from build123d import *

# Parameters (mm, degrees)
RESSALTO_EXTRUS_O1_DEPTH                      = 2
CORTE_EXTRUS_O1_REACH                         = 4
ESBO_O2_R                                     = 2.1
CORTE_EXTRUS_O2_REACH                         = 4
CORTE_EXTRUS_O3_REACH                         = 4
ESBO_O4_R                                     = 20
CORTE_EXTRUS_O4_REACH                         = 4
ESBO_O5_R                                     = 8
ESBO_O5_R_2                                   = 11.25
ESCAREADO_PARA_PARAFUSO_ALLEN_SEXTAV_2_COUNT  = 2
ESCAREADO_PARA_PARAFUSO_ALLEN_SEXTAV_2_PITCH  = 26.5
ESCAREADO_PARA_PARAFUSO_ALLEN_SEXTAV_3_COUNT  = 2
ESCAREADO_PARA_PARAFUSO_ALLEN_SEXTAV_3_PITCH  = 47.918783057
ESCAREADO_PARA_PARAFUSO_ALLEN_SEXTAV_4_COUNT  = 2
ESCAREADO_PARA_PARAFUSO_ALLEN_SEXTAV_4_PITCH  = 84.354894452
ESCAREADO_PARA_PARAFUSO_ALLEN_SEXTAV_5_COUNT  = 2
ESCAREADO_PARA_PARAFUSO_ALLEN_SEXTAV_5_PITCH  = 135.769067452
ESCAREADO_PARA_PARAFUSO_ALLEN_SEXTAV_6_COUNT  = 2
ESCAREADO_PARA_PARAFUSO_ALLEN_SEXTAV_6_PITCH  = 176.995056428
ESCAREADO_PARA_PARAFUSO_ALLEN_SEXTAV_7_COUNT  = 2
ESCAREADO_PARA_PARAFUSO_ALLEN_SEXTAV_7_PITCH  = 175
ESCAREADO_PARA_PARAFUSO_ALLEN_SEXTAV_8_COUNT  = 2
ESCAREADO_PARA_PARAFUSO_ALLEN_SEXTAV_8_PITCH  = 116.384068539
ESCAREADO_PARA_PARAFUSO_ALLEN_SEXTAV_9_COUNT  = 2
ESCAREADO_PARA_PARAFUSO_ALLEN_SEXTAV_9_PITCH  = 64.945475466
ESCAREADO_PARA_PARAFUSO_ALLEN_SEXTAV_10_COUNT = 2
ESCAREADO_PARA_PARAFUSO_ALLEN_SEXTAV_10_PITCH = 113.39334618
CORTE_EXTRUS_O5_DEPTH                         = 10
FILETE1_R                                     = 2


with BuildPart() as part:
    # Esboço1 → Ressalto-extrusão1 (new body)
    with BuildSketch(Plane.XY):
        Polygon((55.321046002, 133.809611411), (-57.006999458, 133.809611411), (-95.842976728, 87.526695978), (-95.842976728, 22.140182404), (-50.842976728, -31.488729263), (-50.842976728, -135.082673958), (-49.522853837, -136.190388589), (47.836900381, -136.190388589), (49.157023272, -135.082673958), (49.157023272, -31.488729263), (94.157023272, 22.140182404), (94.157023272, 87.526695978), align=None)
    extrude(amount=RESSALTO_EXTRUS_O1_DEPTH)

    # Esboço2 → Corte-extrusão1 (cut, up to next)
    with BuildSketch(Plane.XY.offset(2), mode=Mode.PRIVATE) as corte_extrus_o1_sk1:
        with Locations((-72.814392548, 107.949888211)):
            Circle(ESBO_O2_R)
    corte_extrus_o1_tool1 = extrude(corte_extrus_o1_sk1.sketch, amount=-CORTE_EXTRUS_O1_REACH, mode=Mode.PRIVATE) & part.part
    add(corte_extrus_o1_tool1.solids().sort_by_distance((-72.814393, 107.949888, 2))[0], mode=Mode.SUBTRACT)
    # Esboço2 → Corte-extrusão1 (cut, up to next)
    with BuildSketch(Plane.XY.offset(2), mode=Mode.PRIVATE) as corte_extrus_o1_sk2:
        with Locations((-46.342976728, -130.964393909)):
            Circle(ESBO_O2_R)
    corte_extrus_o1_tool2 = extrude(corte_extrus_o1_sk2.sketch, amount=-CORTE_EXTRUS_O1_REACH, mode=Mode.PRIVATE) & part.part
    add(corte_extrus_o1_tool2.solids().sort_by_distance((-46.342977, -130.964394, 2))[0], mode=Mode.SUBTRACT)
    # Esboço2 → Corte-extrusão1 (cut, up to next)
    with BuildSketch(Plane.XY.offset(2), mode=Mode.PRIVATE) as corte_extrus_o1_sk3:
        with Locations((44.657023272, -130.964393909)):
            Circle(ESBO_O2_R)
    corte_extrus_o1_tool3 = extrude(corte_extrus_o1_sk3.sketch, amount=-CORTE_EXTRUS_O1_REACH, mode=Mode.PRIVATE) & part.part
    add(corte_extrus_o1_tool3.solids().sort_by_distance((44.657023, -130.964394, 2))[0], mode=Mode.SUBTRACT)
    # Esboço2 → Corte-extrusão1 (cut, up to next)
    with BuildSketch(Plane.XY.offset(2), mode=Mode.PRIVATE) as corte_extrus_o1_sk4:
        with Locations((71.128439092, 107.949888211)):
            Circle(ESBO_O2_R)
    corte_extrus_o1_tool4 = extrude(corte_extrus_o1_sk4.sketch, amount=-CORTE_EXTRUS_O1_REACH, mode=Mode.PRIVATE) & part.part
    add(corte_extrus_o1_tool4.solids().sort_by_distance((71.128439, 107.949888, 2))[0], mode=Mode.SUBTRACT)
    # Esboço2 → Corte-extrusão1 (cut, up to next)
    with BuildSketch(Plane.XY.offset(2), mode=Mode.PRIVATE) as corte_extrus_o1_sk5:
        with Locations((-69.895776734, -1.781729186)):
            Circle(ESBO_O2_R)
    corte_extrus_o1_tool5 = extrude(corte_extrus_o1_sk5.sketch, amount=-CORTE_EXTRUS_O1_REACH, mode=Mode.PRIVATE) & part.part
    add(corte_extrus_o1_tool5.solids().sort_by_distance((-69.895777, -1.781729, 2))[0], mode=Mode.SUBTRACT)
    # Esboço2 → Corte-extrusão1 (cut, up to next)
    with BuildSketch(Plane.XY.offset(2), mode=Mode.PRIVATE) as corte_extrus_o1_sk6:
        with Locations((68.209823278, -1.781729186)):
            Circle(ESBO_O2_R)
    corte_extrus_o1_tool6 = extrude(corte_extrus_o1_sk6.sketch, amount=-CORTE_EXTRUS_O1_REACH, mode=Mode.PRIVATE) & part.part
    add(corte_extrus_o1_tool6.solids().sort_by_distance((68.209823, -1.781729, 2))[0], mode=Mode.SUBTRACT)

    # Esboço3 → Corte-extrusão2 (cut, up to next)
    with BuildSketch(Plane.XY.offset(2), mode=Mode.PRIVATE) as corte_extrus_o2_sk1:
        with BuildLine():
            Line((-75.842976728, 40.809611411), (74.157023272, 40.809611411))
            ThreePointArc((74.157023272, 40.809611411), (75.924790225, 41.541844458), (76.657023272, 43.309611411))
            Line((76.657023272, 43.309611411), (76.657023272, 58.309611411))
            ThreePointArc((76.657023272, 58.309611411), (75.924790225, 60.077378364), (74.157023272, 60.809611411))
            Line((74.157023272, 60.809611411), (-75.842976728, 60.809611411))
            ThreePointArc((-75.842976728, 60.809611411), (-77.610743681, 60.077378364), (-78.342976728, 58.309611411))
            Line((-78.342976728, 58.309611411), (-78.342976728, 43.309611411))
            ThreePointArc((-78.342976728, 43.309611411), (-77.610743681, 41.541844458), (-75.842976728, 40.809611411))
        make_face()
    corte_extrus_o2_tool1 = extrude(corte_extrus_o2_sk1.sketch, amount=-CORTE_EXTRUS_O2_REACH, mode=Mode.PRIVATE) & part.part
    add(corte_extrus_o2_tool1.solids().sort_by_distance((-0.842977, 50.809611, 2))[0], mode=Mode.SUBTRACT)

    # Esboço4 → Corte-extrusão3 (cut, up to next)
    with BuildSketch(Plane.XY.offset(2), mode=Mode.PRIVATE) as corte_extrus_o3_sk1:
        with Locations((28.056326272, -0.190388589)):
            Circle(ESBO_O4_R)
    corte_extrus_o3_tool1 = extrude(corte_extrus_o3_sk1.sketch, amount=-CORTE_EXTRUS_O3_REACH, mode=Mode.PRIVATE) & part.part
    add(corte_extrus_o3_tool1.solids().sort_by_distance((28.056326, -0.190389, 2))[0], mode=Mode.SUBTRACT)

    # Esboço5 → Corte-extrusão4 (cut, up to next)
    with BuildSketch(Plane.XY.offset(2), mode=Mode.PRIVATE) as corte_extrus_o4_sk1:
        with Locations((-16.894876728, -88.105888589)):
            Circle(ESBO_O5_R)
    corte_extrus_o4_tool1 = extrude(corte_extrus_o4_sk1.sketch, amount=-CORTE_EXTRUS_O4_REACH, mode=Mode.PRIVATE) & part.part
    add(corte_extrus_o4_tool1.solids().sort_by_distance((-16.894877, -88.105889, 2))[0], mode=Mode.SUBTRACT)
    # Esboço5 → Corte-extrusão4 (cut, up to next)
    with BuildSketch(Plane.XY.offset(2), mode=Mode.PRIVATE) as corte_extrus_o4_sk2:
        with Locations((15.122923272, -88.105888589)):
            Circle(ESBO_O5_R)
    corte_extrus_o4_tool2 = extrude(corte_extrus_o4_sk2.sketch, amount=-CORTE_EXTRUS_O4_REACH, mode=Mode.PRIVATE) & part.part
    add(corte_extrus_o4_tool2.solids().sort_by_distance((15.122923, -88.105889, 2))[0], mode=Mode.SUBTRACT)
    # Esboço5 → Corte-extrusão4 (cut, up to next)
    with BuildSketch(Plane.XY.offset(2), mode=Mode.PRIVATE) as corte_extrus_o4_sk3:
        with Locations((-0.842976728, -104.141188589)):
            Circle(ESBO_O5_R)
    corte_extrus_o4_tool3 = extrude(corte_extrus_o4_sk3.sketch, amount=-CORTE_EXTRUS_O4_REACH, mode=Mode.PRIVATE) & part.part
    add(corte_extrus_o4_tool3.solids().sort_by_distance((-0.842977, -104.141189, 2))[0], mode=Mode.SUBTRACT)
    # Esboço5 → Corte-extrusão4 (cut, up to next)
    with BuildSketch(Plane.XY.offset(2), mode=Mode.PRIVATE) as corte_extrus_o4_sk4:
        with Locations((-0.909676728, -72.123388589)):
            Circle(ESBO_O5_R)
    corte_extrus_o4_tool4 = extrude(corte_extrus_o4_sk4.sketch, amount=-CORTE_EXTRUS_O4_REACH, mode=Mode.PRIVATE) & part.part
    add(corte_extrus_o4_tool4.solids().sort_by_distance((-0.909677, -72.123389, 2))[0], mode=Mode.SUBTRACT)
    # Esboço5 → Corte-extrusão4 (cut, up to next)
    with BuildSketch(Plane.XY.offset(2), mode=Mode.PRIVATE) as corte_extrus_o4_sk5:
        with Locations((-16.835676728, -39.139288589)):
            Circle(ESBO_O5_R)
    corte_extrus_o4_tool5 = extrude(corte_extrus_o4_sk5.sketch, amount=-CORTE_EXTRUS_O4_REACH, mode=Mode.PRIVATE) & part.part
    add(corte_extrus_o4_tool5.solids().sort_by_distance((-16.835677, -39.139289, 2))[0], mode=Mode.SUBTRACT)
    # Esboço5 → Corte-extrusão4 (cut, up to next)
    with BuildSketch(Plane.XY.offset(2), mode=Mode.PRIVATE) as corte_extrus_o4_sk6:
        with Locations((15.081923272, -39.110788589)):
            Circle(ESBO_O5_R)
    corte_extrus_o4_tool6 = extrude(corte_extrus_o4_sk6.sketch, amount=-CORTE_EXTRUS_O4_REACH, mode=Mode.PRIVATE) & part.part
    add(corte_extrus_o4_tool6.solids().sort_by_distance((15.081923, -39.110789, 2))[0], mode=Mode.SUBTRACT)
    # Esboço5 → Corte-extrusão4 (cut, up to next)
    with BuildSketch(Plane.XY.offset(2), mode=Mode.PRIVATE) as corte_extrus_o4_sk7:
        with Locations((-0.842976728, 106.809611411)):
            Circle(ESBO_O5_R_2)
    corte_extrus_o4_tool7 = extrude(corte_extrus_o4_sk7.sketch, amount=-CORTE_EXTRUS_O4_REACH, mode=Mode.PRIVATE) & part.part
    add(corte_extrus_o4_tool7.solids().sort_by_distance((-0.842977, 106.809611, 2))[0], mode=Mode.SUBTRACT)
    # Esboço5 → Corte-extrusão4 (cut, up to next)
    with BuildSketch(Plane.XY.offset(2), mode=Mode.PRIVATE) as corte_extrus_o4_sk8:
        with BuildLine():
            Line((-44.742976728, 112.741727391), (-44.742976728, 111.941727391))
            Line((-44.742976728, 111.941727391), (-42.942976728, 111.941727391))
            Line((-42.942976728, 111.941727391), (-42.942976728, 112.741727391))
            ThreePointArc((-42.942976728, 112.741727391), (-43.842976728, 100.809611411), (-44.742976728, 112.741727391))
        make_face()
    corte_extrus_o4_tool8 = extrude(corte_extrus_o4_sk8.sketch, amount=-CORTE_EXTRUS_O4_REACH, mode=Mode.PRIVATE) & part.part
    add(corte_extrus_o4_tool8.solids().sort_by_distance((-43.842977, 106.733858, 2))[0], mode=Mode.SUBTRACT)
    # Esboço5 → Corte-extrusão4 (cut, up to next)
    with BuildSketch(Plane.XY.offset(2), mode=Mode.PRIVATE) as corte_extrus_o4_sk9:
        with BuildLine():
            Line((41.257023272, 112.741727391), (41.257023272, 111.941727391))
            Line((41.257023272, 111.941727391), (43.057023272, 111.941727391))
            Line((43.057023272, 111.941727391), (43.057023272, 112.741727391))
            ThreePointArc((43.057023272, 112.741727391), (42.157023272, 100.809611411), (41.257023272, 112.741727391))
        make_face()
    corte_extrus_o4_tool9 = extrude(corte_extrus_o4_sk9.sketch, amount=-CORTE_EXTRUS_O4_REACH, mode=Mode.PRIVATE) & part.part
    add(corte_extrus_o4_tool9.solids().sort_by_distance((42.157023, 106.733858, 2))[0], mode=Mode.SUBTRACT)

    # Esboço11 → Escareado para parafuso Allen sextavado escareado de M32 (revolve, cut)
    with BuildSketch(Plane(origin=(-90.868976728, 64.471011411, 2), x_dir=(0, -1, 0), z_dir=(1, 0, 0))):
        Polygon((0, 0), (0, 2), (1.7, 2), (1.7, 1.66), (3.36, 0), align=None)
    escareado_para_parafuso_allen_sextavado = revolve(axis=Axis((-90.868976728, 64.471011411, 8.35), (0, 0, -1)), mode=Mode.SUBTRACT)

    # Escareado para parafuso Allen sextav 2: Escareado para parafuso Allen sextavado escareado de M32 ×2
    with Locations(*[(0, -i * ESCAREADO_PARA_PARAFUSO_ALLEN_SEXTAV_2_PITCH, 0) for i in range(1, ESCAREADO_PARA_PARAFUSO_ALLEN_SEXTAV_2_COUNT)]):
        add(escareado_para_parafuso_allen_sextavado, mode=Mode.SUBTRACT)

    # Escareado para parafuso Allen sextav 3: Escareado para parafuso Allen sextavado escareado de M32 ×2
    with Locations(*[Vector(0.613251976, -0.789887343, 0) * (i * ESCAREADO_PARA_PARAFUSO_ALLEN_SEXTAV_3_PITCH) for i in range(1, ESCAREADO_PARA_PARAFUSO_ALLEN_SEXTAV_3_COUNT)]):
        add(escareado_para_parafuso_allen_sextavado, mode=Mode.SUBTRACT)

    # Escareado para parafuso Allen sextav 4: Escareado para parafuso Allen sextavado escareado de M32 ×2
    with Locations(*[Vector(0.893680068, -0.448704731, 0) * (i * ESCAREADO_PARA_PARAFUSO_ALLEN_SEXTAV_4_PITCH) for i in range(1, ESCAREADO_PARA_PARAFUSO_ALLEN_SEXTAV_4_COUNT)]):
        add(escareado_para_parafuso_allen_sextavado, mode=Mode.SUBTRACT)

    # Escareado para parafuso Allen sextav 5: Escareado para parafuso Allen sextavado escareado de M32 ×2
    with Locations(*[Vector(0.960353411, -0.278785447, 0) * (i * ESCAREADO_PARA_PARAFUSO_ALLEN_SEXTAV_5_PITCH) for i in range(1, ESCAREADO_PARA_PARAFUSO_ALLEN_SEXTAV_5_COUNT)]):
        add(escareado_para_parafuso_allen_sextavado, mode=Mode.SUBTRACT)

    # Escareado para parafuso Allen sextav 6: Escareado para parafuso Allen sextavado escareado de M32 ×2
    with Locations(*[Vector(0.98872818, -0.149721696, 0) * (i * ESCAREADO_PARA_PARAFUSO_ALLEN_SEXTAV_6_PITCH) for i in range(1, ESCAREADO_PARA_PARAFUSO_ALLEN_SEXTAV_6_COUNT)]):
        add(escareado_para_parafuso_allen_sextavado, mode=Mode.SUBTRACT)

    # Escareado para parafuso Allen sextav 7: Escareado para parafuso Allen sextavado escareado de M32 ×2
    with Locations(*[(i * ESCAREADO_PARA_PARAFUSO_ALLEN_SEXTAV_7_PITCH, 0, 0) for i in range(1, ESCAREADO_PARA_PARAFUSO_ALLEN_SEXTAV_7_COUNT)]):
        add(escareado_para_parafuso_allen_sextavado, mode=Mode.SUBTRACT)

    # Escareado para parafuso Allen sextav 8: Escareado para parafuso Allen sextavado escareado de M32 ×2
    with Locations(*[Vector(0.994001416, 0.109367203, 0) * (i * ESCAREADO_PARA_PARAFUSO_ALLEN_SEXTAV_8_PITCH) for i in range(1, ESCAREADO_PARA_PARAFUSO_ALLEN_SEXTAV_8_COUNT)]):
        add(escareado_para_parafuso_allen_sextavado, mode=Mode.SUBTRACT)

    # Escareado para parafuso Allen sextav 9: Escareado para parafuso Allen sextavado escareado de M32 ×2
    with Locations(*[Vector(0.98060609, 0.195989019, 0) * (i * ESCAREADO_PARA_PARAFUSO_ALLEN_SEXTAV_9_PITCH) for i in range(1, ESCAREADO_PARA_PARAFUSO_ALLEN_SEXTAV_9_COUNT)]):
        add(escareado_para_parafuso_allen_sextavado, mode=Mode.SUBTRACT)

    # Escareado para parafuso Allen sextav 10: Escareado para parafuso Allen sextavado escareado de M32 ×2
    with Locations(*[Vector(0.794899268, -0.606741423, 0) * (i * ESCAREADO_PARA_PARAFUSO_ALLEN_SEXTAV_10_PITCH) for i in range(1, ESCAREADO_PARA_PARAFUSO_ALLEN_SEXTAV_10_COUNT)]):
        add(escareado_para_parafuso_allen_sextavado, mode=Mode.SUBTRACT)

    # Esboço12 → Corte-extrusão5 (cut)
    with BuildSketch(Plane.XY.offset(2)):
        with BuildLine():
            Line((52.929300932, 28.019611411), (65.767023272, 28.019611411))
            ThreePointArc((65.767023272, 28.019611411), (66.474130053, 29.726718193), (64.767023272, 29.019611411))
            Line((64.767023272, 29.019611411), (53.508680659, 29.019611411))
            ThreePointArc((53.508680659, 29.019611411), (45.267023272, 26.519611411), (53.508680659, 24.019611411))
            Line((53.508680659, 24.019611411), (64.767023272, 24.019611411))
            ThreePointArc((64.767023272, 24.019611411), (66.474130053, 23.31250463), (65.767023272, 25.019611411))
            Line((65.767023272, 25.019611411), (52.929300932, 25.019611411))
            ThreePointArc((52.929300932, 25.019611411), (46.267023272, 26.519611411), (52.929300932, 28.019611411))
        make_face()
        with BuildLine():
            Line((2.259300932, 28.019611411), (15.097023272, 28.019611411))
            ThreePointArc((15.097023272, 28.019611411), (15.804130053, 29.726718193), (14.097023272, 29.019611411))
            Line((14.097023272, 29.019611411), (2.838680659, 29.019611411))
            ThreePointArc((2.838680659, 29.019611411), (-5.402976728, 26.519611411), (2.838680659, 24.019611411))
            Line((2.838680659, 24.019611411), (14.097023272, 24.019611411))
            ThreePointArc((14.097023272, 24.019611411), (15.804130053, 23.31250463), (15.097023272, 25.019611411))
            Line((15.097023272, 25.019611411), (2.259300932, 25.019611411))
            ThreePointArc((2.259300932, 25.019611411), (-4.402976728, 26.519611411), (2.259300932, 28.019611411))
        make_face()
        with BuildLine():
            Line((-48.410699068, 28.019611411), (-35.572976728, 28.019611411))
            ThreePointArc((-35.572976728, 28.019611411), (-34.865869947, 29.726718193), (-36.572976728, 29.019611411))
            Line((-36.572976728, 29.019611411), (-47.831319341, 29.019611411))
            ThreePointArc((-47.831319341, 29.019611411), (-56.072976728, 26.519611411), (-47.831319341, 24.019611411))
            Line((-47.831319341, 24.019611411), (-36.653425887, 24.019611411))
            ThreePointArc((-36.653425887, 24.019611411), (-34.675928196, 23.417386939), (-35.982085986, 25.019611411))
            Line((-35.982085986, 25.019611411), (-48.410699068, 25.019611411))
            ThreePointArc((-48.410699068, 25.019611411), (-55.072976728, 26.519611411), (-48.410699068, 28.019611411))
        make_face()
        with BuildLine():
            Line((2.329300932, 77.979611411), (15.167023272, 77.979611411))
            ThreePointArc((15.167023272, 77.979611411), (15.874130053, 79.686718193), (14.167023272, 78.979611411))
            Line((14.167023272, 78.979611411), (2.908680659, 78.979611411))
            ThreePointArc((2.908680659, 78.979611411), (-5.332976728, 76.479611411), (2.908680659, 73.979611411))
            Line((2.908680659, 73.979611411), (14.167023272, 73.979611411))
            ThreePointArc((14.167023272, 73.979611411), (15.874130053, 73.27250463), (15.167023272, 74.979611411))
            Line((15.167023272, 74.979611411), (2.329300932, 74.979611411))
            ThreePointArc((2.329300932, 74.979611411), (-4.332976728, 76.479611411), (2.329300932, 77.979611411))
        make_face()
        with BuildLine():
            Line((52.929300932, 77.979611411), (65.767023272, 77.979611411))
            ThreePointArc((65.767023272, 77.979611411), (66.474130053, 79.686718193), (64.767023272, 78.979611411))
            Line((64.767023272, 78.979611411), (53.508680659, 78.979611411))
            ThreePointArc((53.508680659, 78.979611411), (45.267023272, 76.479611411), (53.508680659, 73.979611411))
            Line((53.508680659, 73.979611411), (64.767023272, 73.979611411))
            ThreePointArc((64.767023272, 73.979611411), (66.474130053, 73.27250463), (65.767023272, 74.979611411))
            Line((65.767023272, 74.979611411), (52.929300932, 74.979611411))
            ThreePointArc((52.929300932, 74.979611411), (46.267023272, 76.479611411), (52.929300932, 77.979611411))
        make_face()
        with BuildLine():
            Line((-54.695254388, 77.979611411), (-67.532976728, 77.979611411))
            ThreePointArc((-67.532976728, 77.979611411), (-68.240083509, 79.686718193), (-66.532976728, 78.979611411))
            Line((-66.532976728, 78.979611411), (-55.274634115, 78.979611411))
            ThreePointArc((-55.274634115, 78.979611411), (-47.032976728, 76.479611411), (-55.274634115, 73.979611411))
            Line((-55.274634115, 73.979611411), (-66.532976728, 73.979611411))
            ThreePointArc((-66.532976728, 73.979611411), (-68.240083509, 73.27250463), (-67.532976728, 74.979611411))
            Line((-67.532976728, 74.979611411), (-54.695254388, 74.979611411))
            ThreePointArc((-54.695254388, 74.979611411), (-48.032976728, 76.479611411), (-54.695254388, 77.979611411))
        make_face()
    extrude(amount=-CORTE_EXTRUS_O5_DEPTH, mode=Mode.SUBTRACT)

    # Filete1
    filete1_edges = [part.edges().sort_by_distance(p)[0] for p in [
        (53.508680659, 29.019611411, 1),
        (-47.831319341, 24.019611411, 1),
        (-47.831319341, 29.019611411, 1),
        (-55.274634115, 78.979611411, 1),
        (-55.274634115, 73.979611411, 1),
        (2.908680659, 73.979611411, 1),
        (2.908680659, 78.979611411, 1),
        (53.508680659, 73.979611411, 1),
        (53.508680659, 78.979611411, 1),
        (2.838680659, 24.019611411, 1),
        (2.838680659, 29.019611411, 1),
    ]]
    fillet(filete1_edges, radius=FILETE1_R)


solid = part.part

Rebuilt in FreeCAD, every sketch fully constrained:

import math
import FreeCAD as App
import Part
import Sketcher

V = App.Vector
Q = App.Units.Quantity


def edges_at(feature, points):
    """Names of the edges that pass closest to the given points."""
    edges = feature.Shape.Edges
    near = lambda p: min(range(len(edges)), key=lambda i: edges[i].distToShape(Part.Vertex(*p))[0])
    return sorted({f"Edge{near(p) + 1}" for p in points})

doc = App.newDocument("Part")
body = doc.addObject("PartDesign::Body", "Body")

sketch1 = doc.addObject("Sketcher::SketchObject", "Sketch")
body.addObject(sketch1)
sketch1.AttachmentSupport = (doc.XY_Plane, [""])
sketch1.MapMode = "FlatFace"
sketch1.addGeometry([
    Part.LineSegment(V(55.3, 133.8, 0), V(-57, 133.8, 0)),
    Part.LineSegment(V(-57, 133.8, 0), V(-95.8, 87.5, 0)),
    Part.LineSegment(V(-95.8, 87.5, 0), V(-95.8, 22.1, 0)),
    Part.LineSegment(V(-95.8, 22.1, 0), V(-50.8, -31.5, 0)),
    Part.LineSegment(V(-50.8, -31.5, 0), V(-50.8, -135.1, 0)),
    Part.LineSegment(V(-50.8, -135.1, 0), V(-49.5, -136.2, 0)),
    Part.LineSegment(V(-49.5, -136.2, 0), V(47.8, -136.2, 0)),
    Part.LineSegment(V(47.8, -136.2, 0), V(49.2, -135.1, 0)),
    Part.LineSegment(V(49.2, -135.1, 0), V(49.2, -31.5, 0)),
    Part.LineSegment(V(49.2, -31.5, 0), V(94.2, 22.1, 0)),
    Part.LineSegment(V(94.2, 22.1, 0), V(94.2, 87.5, 0)),
    Part.LineSegment(V(94.2, 87.5, 0), V(55.3, 133.8, 0)),
], False)
sketch1.addConstraint([
    Sketcher.Constraint("Coincident", 0, 2, 1, 1),
    Sketcher.Constraint("Coincident", 1, 2, 2, 1),
    Sketcher.Constraint("Coincident", 2, 2, 3, 1),
    Sketcher.Constraint("Coincident", 3, 2, 4, 1),
    Sketcher.Constraint("Coincident", 4, 2, 5, 1),
    Sketcher.Constraint("Coincident", 5, 2, 6, 1),
    Sketcher.Constraint("Coincident", 6, 2, 7, 1),
    Sketcher.Constraint("Coincident", 7, 2, 8, 1),
    Sketcher.Constraint("Coincident", 8, 2, 9, 1),
    Sketcher.Constraint("Coincident", 9, 2, 10, 1),
    Sketcher.Constraint("Coincident", 10, 2, 11, 1),
    Sketcher.Constraint("Coincident", 11, 2, 0, 1),
    Sketcher.Constraint("Horizontal", 0),
    Sketcher.Constraint("Vertical", 2),
    Sketcher.Constraint("Vertical", 4),
    Sketcher.Constraint("Horizontal", 6),
    Sketcher.Constraint("Vertical", 8),
    Sketcher.Constraint("Vertical", 10),
    Sketcher.Constraint("Perpendicular", 1, 5),
    Sketcher.Constraint("Perpendicular", 3, 7),
    Sketcher.Constraint("Perpendicular", 5, 9),
    Sketcher.Constraint("Perpendicular", 7, 11),
    Sketcher.Constraint("Horizontal", 4, 2, 7, 2),
    Sketcher.Constraint("Horizontal", 3, 2, 8, 2),
    Sketcher.Constraint("Horizontal", 2, 2, 9, 2),
    Sketcher.Constraint("Horizontal", 1, 2, 10, 2),
    Sketcher.Constraint("Equal", 5, 7),
    Sketcher.Constraint("Angle", 1, Q("-130 deg")),
    Sketcher.Constraint("DistanceX", 2, 2, 3, 2, 45.0),
    Sketcher.Constraint("DistanceY", 5, 2, 0, 2, 270.0),
    Sketcher.Constraint("DistanceX", 4, 2, 7, 2, 100.0),
    Sketcher.Constraint("DistanceX", 0, 2, -1, 1, 57.006999),
    Sketcher.Constraint("Distance", 5, 1.723298),
    Sketcher.Constraint("DistanceX", -1, 1, 6, 2, 47.8369),
    Sketcher.Constraint("DistanceY", 2, 2, 2, 1, 65.386514),
    Sketcher.Constraint("DistanceY", -1, 1, 0, 2, 133.809611),
])
pad1 = doc.addObject("PartDesign::Pad", "Pad")
body.addObject(pad1)
pad1.Profile = sketch1
pad1.Length = 2

sketch2 = doc.addObject("Sketcher::SketchObject", "Sketch001")
body.addObject(sketch2)
sketch2.AttachmentSupport = (doc.XY_Plane, [""])
sketch2.MapMode = "FlatFace"
sketch2.AttachmentOffset = App.Placement(V(0, 0, 2), App.Rotation())
sketch2.addGeometry(Part.Circle(V(-72.8, 107.9, 0), V(0, 0, 1), 2.1), False)
sketch2.addConstraint([
    Sketcher.Constraint("Diameter", 0, 4.2),
    Sketcher.Constraint("DistanceY", -1, 1, 0, 3, 107.949888),
    Sketcher.Constraint("DistanceX", 0, 3, -1, 1, 72.814393),
])
pocket1 = doc.addObject("PartDesign::Pocket", "Pocket")
body.addObject(pocket1)
pocket1.Profile = sketch2
pocket1.Type = "UpToFirst"

sketch3 = doc.addObject("Sketcher::SketchObject", "Sketch002")
body.addObject(sketch3)
sketch3.AttachmentSupport = (doc.XY_Plane, [""])
sketch3.MapMode = "FlatFace"
sketch3.AttachmentOffset = App.Placement(V(0, 0, 2), App.Rotation())
sketch3.addGeometry(Part.Circle(V(-46.3, -131, 0), V(0, 0, 1), 2.1), False)
sketch3.addConstraint([
    Sketcher.Constraint("Diameter", 0, 4.2),
    Sketcher.Constraint("DistanceX", 0, 3, -1, 1, 46.342977),
    Sketcher.Constraint("DistanceY", 0, 3, -1, 1, 130.964394),
])
pocket2 = doc.addObject("PartDesign::Pocket", "Pocket001")
body.addObject(pocket2)
pocket2.Profile = sketch3
pocket2.Type = "UpToFirst"

sketch4 = doc.addObject("Sketcher::SketchObject", "Sketch003")
body.addObject(sketch4)
sketch4.AttachmentSupport = (doc.XY_Plane, [""])
sketch4.MapMode = "FlatFace"
sketch4.AttachmentOffset = App.Placement(V(0, 0, 2), App.Rotation())
sketch4.addGeometry(Part.Circle(V(44.7, -131, 0), V(0, 0, 1), 2.1), False)
sketch4.addConstraint([
    Sketcher.Constraint("Diameter", 0, 4.2),
    Sketcher.Constraint("DistanceX", -1, 1, 0, 3, 44.657023),
    Sketcher.Constraint("DistanceY", 0, 3, -1, 1, 130.964394),
])
pocket3 = doc.addObject("PartDesign::Pocket", "Pocket002")
body.addObject(pocket3)
pocket3.Profile = sketch4
pocket3.Type = "UpToFirst"

sketch5 = doc.addObject("Sketcher::SketchObject", "Sketch004")
body.addObject(sketch5)
sketch5.AttachmentSupport = (doc.XY_Plane, [""])
sketch5.MapMode = "FlatFace"
sketch5.AttachmentOffset = App.Placement(V(0, 0, 2), App.Rotation())
sketch5.addGeometry(Part.Circle(V(71.1, 107.9, 0), V(0, 0, 1), 2.1), False)
sketch5.addConstraint([
    Sketcher.Constraint("Diameter", 0, 4.2),
    Sketcher.Constraint("DistanceX", -1, 1, 0, 3, 71.128439),
    Sketcher.Constraint("DistanceY", -1, 1, 0, 3, 107.949888),
])
pocket4 = doc.addObject("PartDesign::Pocket", "Pocket003")
body.addObject(pocket4)
pocket4.Profile = sketch5
pocket4.Type = "UpToFirst"

sketch6 = doc.addObject("Sketcher::SketchObject", "Sketch005")
body.addObject(sketch6)
sketch6.AttachmentSupport = (doc.XY_Plane, [""])
sketch6.MapMode = "FlatFace"
sketch6.AttachmentOffset = App.Placement(V(0, 0, 2), App.Rotation())
sketch6.addGeometry(Part.Circle(V(-69.9, -1.8, 0), V(0, 0, 1), 2.1), False)
sketch6.addConstraint([
    Sketcher.Constraint("Diameter", 0, 4.2),
    Sketcher.Constraint("DistanceY", 0, 3, -1, 1, 1.781729),
    Sketcher.Constraint("DistanceX", 0, 3, -1, 1, 69.895777),
])
pocket5 = doc.addObject("PartDesign::Pocket", "Pocket004")
body.addObject(pocket5)
pocket5.Profile = sketch6
pocket5.Type = "UpToFirst"

sketch7 = doc.addObject("Sketcher::SketchObject", "Sketch006")
body.addObject(sketch7)
sketch7.AttachmentSupport = (doc.XY_Plane, [""])
sketch7.MapMode = "FlatFace"
sketch7.AttachmentOffset = App.Placement(V(0, 0, 2), App.Rotation())
sketch7.addGeometry(Part.Circle(V(68.2, -1.8, 0), V(0, 0, 1), 2.1), False)
sketch7.addConstraint([
    Sketcher.Constraint("Diameter", 0, 4.2),
    Sketcher.Constraint("DistanceY", 0, 3, -1, 1, 1.781729),
    Sketcher.Constraint("DistanceX", -1, 1, 0, 3, 68.209823),
])
pocket6 = doc.addObject("PartDesign::Pocket", "Pocket005")
body.addObject(pocket6)
pocket6.Profile = sketch7
pocket6.Type = "UpToFirst"

sketch8 = doc.addObject("Sketcher::SketchObject", "Sketch007")
body.addObject(sketch8)
sketch8.AttachmentSupport = (doc.XY_Plane, [""])
sketch8.MapMode = "FlatFace"
sketch8.AttachmentOffset = App.Placement(V(0, 0, 2), App.Rotation())
sketch8.addGeometry([
    Part.LineSegment(V(-75.8, 40.8, 0), V(74.2, 40.8, 0)),
    Part.ArcOfCircle(Part.Circle(V(74.2, 43.3, 0), V(0, 0, 1), 2.5), math.radians(-90), math.radians(0)),
    Part.LineSegment(V(76.7, 43.3, 0), V(76.7, 58.3, 0)),
    Part.ArcOfCircle(Part.Circle(V(74.2, 58.3, 0), V(0, 0, 1), 2.5), math.radians(0), math.radians(90)),
    Part.LineSegment(V(74.2, 60.8, 0), V(-75.8, 60.8, 0)),
    Part.ArcOfCircle(Part.Circle(V(-75.8, 58.3, 0), V(0, 0, 1), 2.5), math.radians(90), math.radians(180)),
    Part.LineSegment(V(-78.3, 58.3, 0), V(-78.3, 43.3, 0)),
    Part.ArcOfCircle(Part.Circle(V(-75.8, 43.3, 0), V(0, 0, 1), 2.5), math.radians(180), math.radians(270)),
], False)
sketch8.addConstraint([
    Sketcher.Constraint("Tangent", 0, 2, 1, 1),
    Sketcher.Constraint("Tangent", 1, 2, 2, 1),
    Sketcher.Constraint("Tangent", 2, 2, 3, 1),
    Sketcher.Constraint("Tangent", 3, 2, 4, 1),
    Sketcher.Constraint("Tangent", 4, 2, 5, 1),
    Sketcher.Constraint("Tangent", 5, 2, 6, 1),
    Sketcher.Constraint("Tangent", 6, 2, 7, 1),
    Sketcher.Constraint("Tangent", 7, 2, 0, 1),
    Sketcher.Constraint("Horizontal", 0),
    Sketcher.Constraint("Vertical", 2),
    Sketcher.Constraint("Horizontal", 4),
    Sketcher.Constraint("Vertical", 6),
    Sketcher.Constraint("Equal", 1, 3),
    Sketcher.Constraint("Equal", 3, 5),
    Sketcher.Constraint("Equal", 5, 7),
    Sketcher.Constraint("Radius", 1, 2.5),
    Sketcher.Constraint("DistanceX", 0, 1, 0, 2, 150.0),
    Sketcher.Constraint("DistanceY", 2, 1, 2, 2, 15.0),
    Sketcher.Constraint("DistanceY", -1, 1, 1, 3, 43.309611),
    Sketcher.Constraint("DistanceX", -1, 1, 1, 3, 74.157023),
])
pocket7 = doc.addObject("PartDesign::Pocket", "Pocket006")
body.addObject(pocket7)
pocket7.Profile = sketch8
pocket7.Type = "UpToFirst"

sketch9 = doc.addObject("Sketcher::SketchObject", "Sketch008")
body.addObject(sketch9)
sketch9.AttachmentSupport = (doc.XY_Plane, [""])
sketch9.MapMode = "FlatFace"
sketch9.AttachmentOffset = App.Placement(V(0, 0, 2), App.Rotation())
sketch9.addGeometry(Part.Circle(V(28, 0, 0), V(0, 0, 1), 20), False)
sketch9.addConstraint([
    Sketcher.Constraint("Diameter", 0, 40.0),
    Sketcher.Constraint("DistanceY", 0, 3, -1, 1, 0.190389),
    Sketcher.Constraint("DistanceX", -1, 1, 0, 3, 28.056326),
])
pocket8 = doc.addObject("PartDesign::Pocket", "Pocket007")
body.addObject(pocket8)
pocket8.Profile = sketch9
pocket8.Type = "UpToFirst"

sketch10 = doc.addObject("Sketcher::SketchObject", "Sketch009")
body.addObject(sketch10)
sketch10.AttachmentSupport = (doc.XY_Plane, [""])
sketch10.MapMode = "FlatFace"
sketch10.AttachmentOffset = App.Placement(V(0, 0, 2), App.Rotation())
sketch10.addGeometry(Part.Circle(V(-17, -88, 0), V(0, 0, 1), 8), False)
sketch10.addConstraint([
    Sketcher.Constraint("Diameter", 0, 16.0),
    Sketcher.Constraint("DistanceY", 0, 3, -1, 1, 88.105889),
    Sketcher.Constraint("DistanceX", 0, 3, -1, 1, 16.894877),
])
pocket9 = doc.addObject("PartDesign::Pocket", "Pocket008")
body.addObject(pocket9)
pocket9.Profile = sketch10
pocket9.Type = "UpToFirst"

sketch11 = doc.addObject("Sketcher::SketchObject", "Sketch010")
body.addObject(sketch11)
sketch11.AttachmentSupport = (doc.XY_Plane, [""])
sketch11.MapMode = "FlatFace"
sketch11.AttachmentOffset = App.Placement(V(0, 0, 2), App.Rotation())
sketch11.addGeometry(Part.Circle(V(15, -88, 0), V(0, 0, 1), 8), False)
sketch11.addConstraint([
    Sketcher.Constraint("Diameter", 0, 16.0),
    Sketcher.Constraint("DistanceY", 0, 3, -1, 1, 88.105889),
    Sketcher.Constraint("DistanceX", -1, 1, 0, 3, 15.122923),
])
pocket10 = doc.addObject("PartDesign::Pocket", "Pocket009")
body.addObject(pocket10)
pocket10.Profile = sketch11
pocket10.Type = "UpToFirst"

sketch12 = doc.addObject("Sketcher::SketchObject", "Sketch011")
body.addObject(sketch12)
sketch12.AttachmentSupport = (doc.XY_Plane, [""])
sketch12.MapMode = "FlatFace"
sketch12.AttachmentOffset = App.Placement(V(0, 0, 2), App.Rotation())
sketch12.addGeometry(Part.Circle(V(-1, -104, 0), V(0, 0, 1), 8), False)
sketch12.addConstraint([
    Sketcher.Constraint("Diameter", 0, 16.0),
    Sketcher.Constraint("DistanceY", 0, 3, -1, 1, 104.141189),
    Sketcher.Constraint("DistanceX", 0, 3, -1, 1, 0.842977),
])
pocket11 = doc.addObject("PartDesign::Pocket", "Pocket010")
body.addObject(pocket11)
pocket11.Profile = sketch12
pocket11.Type = "UpToFirst"

sketch13 = doc.addObject("Sketcher::SketchObject", "Sketch012")
body.addObject(sketch13)
sketch13.AttachmentSupport = (doc.XY_Plane, [""])
sketch13.MapMode = "FlatFace"
sketch13.AttachmentOffset = App.Placement(V(0, 0, 2), App.Rotation())
sketch13.addGeometry(Part.Circle(V(-1, -72, 0), V(0, 0, 1), 8), False)
sketch13.addConstraint([
    Sketcher.Constraint("Diameter", 0, 16.0),
    Sketcher.Constraint("DistanceY", 0, 3, -1, 1, 72.123389),
    Sketcher.Constraint("DistanceX", 0, 3, -1, 1, 0.909677),
])
pocket12 = doc.addObject("PartDesign::Pocket", "Pocket011")
body.addObject(pocket12)
pocket12.Profile = sketch13
pocket12.Type = "UpToFirst"

sketch14 = doc.addObject("Sketcher::SketchObject", "Sketch013")
body.addObject(sketch14)
sketch14.AttachmentSupport = (doc.XY_Plane, [""])
sketch14.MapMode = "FlatFace"
sketch14.AttachmentOffset = App.Placement(V(0, 0, 2), App.Rotation())
sketch14.addGeometry(Part.Circle(V(-17, -39, 0), V(0, 0, 1), 8), False)
sketch14.addConstraint([
    Sketcher.Constraint("Diameter", 0, 16.0),
    Sketcher.Constraint("DistanceY", 0, 3, -1, 1, 39.139289),
    Sketcher.Constraint("DistanceX", 0, 3, -1, 1, 16.835677),
])
pocket13 = doc.addObject("PartDesign::Pocket", "Pocket012")
body.addObject(pocket13)
pocket13.Profile = sketch14
pocket13.Type = "UpToFirst"

sketch15 = doc.addObject("Sketcher::SketchObject", "Sketch014")
body.addObject(sketch15)
sketch15.AttachmentSupport = (doc.XY_Plane, [""])
sketch15.MapMode = "FlatFace"
sketch15.AttachmentOffset = App.Placement(V(0, 0, 2), App.Rotation())
sketch15.addGeometry(Part.Circle(V(15, -39, 0), V(0, 0, 1), 8), False)
sketch15.addConstraint([
    Sketcher.Constraint("Diameter", 0, 16.0),
    Sketcher.Constraint("DistanceY", 0, 3, -1, 1, 39.110789),
    Sketcher.Constraint("DistanceX", -1, 1, 0, 3, 15.081923),
])
pocket14 = doc.addObject("PartDesign::Pocket", "Pocket013")
body.addObject(pocket14)
pocket14.Profile = sketch15
pocket14.Type = "UpToFirst"

sketch16 = doc.addObject("Sketcher::SketchObject", "Sketch015")
body.addObject(sketch16)
sketch16.AttachmentSupport = (doc.XY_Plane, [""])
sketch16.MapMode = "FlatFace"
sketch16.AttachmentOffset = App.Placement(V(0, 0, 2), App.Rotation())
sketch16.addGeometry(Part.Circle(V(-1, 107, 0), V(0, 0, 1), 11), False)
sketch16.addConstraint([
    Sketcher.Constraint("Diameter", 0, 22.5),
    Sketcher.Constraint("DistanceY", -1, 1, 0, 3, 106.809611),
    Sketcher.Constraint("DistanceX", 0, 3, -1, 1, 0.842977),
])
pocket15 = doc.addObject("PartDesign::Pocket", "Pocket014")
body.addObject(pocket15)
pocket15.Profile = sketch16
pocket15.Type = "UpToFirst"

sketch17 = doc.addObject("Sketcher::SketchObject", "Sketch016")
body.addObject(sketch17)
sketch17.AttachmentSupport = (doc.XY_Plane, [""])
sketch17.MapMode = "FlatFace"
sketch17.AttachmentOffset = App.Placement(V(0, 0, 2), App.Rotation())
sketch17.addGeometry([
    Part.LineSegment(V(-44.7, 111.9, 0), V(-44.7, 112.7, 0)),
    Part.ArcOfCircle(Part.Circle(V(-43.8, 106.8, 0), V(0, 0, 1), 6), math.radians(99), math.radians(441)),
    Part.LineSegment(V(-42.9, 112.7, 0), V(-42.9, 111.9, 0)),
    Part.LineSegment(V(-42.9, 111.9, 0), V(-44.7, 111.9, 0)),
], False)
sketch17.addConstraint([
    Sketcher.Constraint("Coincident", 0, 2, 1, 1),
    Sketcher.Constraint("Coincident", 1, 2, 2, 1),
    Sketcher.Constraint("Coincident", 2, 2, 3, 1),
    Sketcher.Constraint("Coincident", 3, 2, 0, 1),
    Sketcher.Constraint("Vertical", 0),
    Sketcher.Constraint("Vertical", 2),
    Sketcher.Constraint("Horizontal", 3),
    Sketcher.Constraint("Horizontal", 0, 2, 1, 2),
    Sketcher.Constraint("Radius", 1, 6.0),
    Sketcher.Constraint("DistanceX", 3, 2, 3, 1, 1.8),
    Sketcher.Constraint("DistanceY", 0, 1, 0, 2, 0.8),
    Sketcher.Constraint("DistanceY", -1, 1, 1, 3, 106.809611),
    Sketcher.Constraint("DistanceX", 1, 3, -1, 1, 43.842977),
])
pocket16 = doc.addObject("PartDesign::Pocket", "Pocket015")
body.addObject(pocket16)
pocket16.Profile = sketch17
pocket16.Type = "UpToFirst"

sketch18 = doc.addObject("Sketcher::SketchObject", "Sketch017")
body.addObject(sketch18)
sketch18.AttachmentSupport = (doc.XY_Plane, [""])
sketch18.MapMode = "FlatFace"
sketch18.AttachmentOffset = App.Placement(V(0, 0, 2), App.Rotation())
sketch18.addGeometry([
    Part.LineSegment(V(41.3, 111.9, 0), V(41.3, 112.7, 0)),
    Part.ArcOfCircle(Part.Circle(V(42.2, 106.8, 0), V(0, 0, 1), 6), math.radians(99), math.radians(441)),
    Part.LineSegment(V(43.1, 112.7, 0), V(43.1, 111.9, 0)),
    Part.LineSegment(V(43.1, 111.9, 0), V(41.3, 111.9, 0)),
], False)
sketch18.addConstraint([
    Sketcher.Constraint("Coincident", 0, 2, 1, 1),
    Sketcher.Constraint("Coincident", 1, 2, 2, 1),
    Sketcher.Constraint("Coincident", 2, 2, 3, 1),
    Sketcher.Constraint("Coincident", 3, 2, 0, 1),
    Sketcher.Constraint("Vertical", 0),
    Sketcher.Constraint("Vertical", 2),
    Sketcher.Constraint("Horizontal", 3),
    Sketcher.Constraint("Horizontal", 0, 2, 1, 2),
    Sketcher.Constraint("Radius", 1, 6.0),
    Sketcher.Constraint("DistanceX", 3, 2, 3, 1, 1.8),
    Sketcher.Constraint("DistanceY", 0, 1, 0, 2, 0.8),
    Sketcher.Constraint("DistanceY", -1, 1, 1, 3, 106.809611),
    Sketcher.Constraint("DistanceX", -1, 1, 1, 3, 42.157023),
])
pocket17 = doc.addObject("PartDesign::Pocket", "Pocket016")
body.addObject(pocket17)
pocket17.Profile = sketch18
pocket17.Type = "UpToFirst"

sketch19 = doc.addObject("Sketcher::SketchObject", "Sketch018")
body.addObject(sketch19)
sketch19.AttachmentSupport = (doc.YZ_Plane, [""])
sketch19.MapMode = "FlatFace"
sketch19.AttachmentOffset = App.Placement(V(0, 0, -90.868977), App.Rotation())
sketch19.addGeometry([
    Part.LineSegment(V(64.47, 0, 0), V(64.47, 2, 0)),
    Part.LineSegment(V(64.47, 2, 0), V(61.11, 2, 0)),
    Part.LineSegment(V(61.11, 2, 0), V(62.77, 0.34, 0)),
    Part.LineSegment(V(62.77, 0.34, 0), V(62.77, 0, 0)),
    Part.LineSegment(V(62.77, 0, 0), V(64.47, 0, 0)),
], False)
sketch19.addGeometry(Part.LineSegment(V(64.47, 2, 0), V(64.47, 0, 0)), True)
sketch19.addConstraint([
    Sketcher.Constraint("Coincident", 0, 2, 1, 1),
    Sketcher.Constraint("Coincident", 1, 2, 2, 1),
    Sketcher.Constraint("Coincident", 2, 2, 3, 1),
    Sketcher.Constraint("Coincident", 3, 2, 4, 1),
    Sketcher.Constraint("Coincident", 4, 2, 0, 1),
    Sketcher.Constraint("Vertical", 0),
    Sketcher.Constraint("Horizontal", 1),
    Sketcher.Constraint("Vertical", 3),
    Sketcher.Constraint("Horizontal", 4),
    Sketcher.Constraint("Vertical", 5),
    Sketcher.Constraint("Coincident", 5, 1, 0, 2),
    Sketcher.Constraint("PointOnObject", 3, 2, -1),
    Sketcher.Constraint("PointOnObject", 5, 2, -1),
    Sketcher.Constraint("DistanceY", 0, 1, 0, 2, 2.0),
    Sketcher.Constraint("Angle", 2, Q("-45 deg")),
    Sketcher.Constraint("DistanceX", 4, 1, 4, 2, 1.7),
    Sketcher.Constraint("DistanceX", 1, 2, 1, 1, 3.36),
    Sketcher.Constraint("DistanceX", -1, 1, 0, 2, 64.471011),
])
groove = doc.addObject("PartDesign::Groove", "Groove")
body.addObject(groove)
groove.Profile = sketch19
groove.ReferenceAxis = (sketch19, ["Axis0"])
groove.Angle = 360
doc.recompute()

linearpattern = doc.addObject("PartDesign::LinearPattern", "LinearPattern")
body.addObject(linearpattern)
linearpattern.Originals = [groove]
linearpattern.Direction = (doc.Y_Axis, [""])
linearpattern.Mode = "offset"
linearpattern.Offset = 26.5
linearpattern.Occurrences = 2
linearpattern.Reversed = True
body.Tip = linearpattern
doc.recompute()

datumline = doc.addObject("PartDesign::Line", "DatumLine")
body.addObject(datumline)
datumline.Placement = App.Placement(V(0, 0, 0), App.Rotation(V(0, 0, 1), V(0.613251976, -0.789887343, 0)))
linearpattern2 = doc.addObject("PartDesign::LinearPattern", "LinearPattern001")
body.addObject(linearpattern2)
linearpattern2.Originals = [groove]
linearpattern2.Direction = (datumline, [""])
linearpattern2.Mode = "offset"
linearpattern2.Offset = 47.918783
linearpattern2.Occurrences = 2
body.Tip = linearpattern2
doc.recompute()

datumline2 = doc.addObject("PartDesign::Line", "DatumLine001")
body.addObject(datumline2)
datumline2.Placement = App.Placement(V(0, 0, 0), App.Rotation(V(0, 0, 1), V(0.893680068, -0.448704731, 0)))
linearpattern3 = doc.addObject("PartDesign::LinearPattern", "LinearPattern002")
body.addObject(linearpattern3)
linearpattern3.Originals = [groove]
linearpattern3.Direction = (datumline2, [""])
linearpattern3.Mode = "offset"
linearpattern3.Offset = 84.354894
linearpattern3.Occurrences = 2
body.Tip = linearpattern3
doc.recompute()

datumline3 = doc.addObject("PartDesign::Line", "DatumLine002")
body.addObject(datumline3)
datumline3.Placement = App.Placement(V(0, 0, 0), App.Rotation(V(0, 0, 1), V(0.960353411, -0.278785447, 0)))
linearpattern4 = doc.addObject("PartDesign::LinearPattern", "LinearPattern003")
body.addObject(linearpattern4)
linearpattern4.Originals = [groove]
linearpattern4.Direction = (datumline3, [""])
linearpattern4.Mode = "offset"
linearpattern4.Offset = 135.769067
linearpattern4.Occurrences = 2
body.Tip = linearpattern4
doc.recompute()

datumline4 = doc.addObject("PartDesign::Line", "DatumLine003")
body.addObject(datumline4)
datumline4.Placement = App.Placement(V(0, 0, 0), App.Rotation(V(0, 0, 1), V(0.98872818, -0.149721696, 0)))
linearpattern5 = doc.addObject("PartDesign::LinearPattern", "LinearPattern004")
body.addObject(linearpattern5)
linearpattern5.Originals = [groove]
linearpattern5.Direction = (datumline4, [""])
linearpattern5.Mode = "offset"
linearpattern5.Offset = 176.995056
linearpattern5.Occurrences = 2
body.Tip = linearpattern5
doc.recompute()

linearpattern6 = doc.addObject("PartDesign::LinearPattern", "LinearPattern005")
body.addObject(linearpattern6)
linearpattern6.Originals = [groove]
linearpattern6.Direction = (doc.X_Axis, [""])
linearpattern6.Mode = "offset"
linearpattern6.Offset = 175
linearpattern6.Occurrences = 2
body.Tip = linearpattern6
doc.recompute()

datumline5 = doc.addObject("PartDesign::Line", "DatumLine004")
body.addObject(datumline5)
datumline5.Placement = App.Placement(V(0, 0, 0), App.Rotation(V(0, 0, 1), V(0.994001416, 0.109367203, 0)))
linearpattern7 = doc.addObject("PartDesign::LinearPattern", "LinearPattern006")
body.addObject(linearpattern7)
linearpattern7.Originals = [groove]
linearpattern7.Direction = (datumline5, [""])
linearpattern7.Mode = "offset"
linearpattern7.Offset = 116.384069
linearpattern7.Occurrences = 2
body.Tip = linearpattern7
doc.recompute()

datumline6 = doc.addObject("PartDesign::Line", "DatumLine005")
body.addObject(datumline6)
datumline6.Placement = App.Placement(V(0, 0, 0), App.Rotation(V(0, 0, 1), V(0.98060609, 0.195989019, 0)))
linearpattern8 = doc.addObject("PartDesign::LinearPattern", "LinearPattern007")
body.addObject(linearpattern8)
linearpattern8.Originals = [groove]
linearpattern8.Direction = (datumline6, [""])
linearpattern8.Mode = "offset"
linearpattern8.Offset = 64.945475
linearpattern8.Occurrences = 2
body.Tip = linearpattern8
doc.recompute()

datumline7 = doc.addObject("PartDesign::Line", "DatumLine006")
body.addObject(datumline7)
datumline7.Placement = App.Placement(V(0, 0, 0), App.Rotation(V(0, 0, 1), V(0.794899268, -0.606741423, 0)))
linearpattern9 = doc.addObject("PartDesign::LinearPattern", "LinearPattern008")
body.addObject(linearpattern9)
linearpattern9.Originals = [groove]
linearpattern9.Direction = (datumline7, [""])
linearpattern9.Mode = "offset"
linearpattern9.Offset = 113.393346
linearpattern9.Occurrences = 2
body.Tip = linearpattern9

sketch20 = doc.addObject("Sketcher::SketchObject", "Sketch019")
body.addObject(sketch20)
sketch20.AttachmentSupport = (doc.XY_Plane, [""])
sketch20.MapMode = "FlatFace"
sketch20.AttachmentOffset = App.Placement(V(0, 0, 2), App.Rotation())
sketch20.addGeometry([
    Part.LineSegment(V(52.9, 28, 0), V(65.8, 28, 0)),
    Part.ArcOfCircle(Part.Circle(V(65.8, 29, 0), V(0, 0, 1), 1), math.radians(-90), math.radians(180)),
    Part.LineSegment(V(64.8, 29, 0), V(53.5, 29, 0)),
    Part.ArcOfCircle(Part.Circle(V(49.8, 26.5, 0), V(0, 0, 1), 4.5), math.radians(34), math.radians(326)),
    Part.LineSegment(V(53.5, 24, 0), V(64.8, 24, 0)),
    Part.ArcOfCircle(Part.Circle(V(65.8, 24, 0), V(0, 0, 1), 1), math.radians(180), math.radians(450)),
    Part.LineSegment(V(65.8, 25, 0), V(52.9, 25, 0)),
    Part.ArcOfCircle(Part.Circle(V(49.8, 26.5, 0), V(0, 0, 1), 3.5), math.radians(25), math.radians(335)),
    Part.LineSegment(V(2.3, 28, 0), V(15.1, 28, 0)),
    Part.ArcOfCircle(Part.Circle(V(15.1, 29, 0), V(0, 0, 1), 1), math.radians(-90), math.radians(180)),
    Part.LineSegment(V(14.1, 29, 0), V(2.8, 29, 0)),
    Part.ArcOfCircle(Part.Circle(V(-0.9, 26.5, 0), V(0, 0, 1), 4.5), math.radians(34), math.radians(326)),
    Part.LineSegment(V(2.8, 24, 0), V(14.1, 24, 0)),
    Part.ArcOfCircle(Part.Circle(V(15.1, 24, 0), V(0, 0, 1), 1), math.radians(180), math.radians(450)),
    Part.LineSegment(V(15.1, 25, 0), V(2.3, 25, 0)),
    Part.ArcOfCircle(Part.Circle(V(-0.9, 26.5, 0), V(0, 0, 1), 3.5), math.radians(25), math.radians(335)),
    Part.LineSegment(V(-48.4, 28, 0), V(-35.6, 28, 0)),
    Part.ArcOfCircle(Part.Circle(V(-35.6, 29, 0), V(0, 0, 1), 1), math.radians(-90), math.radians(180)),
    Part.LineSegment(V(-36.6, 29, 0), V(-47.8, 29, 0)),
    Part.ArcOfCircle(Part.Circle(V(-51.6, 26.5, 0), V(0, 0, 1), 4.5), math.radians(34), math.radians(326)),
    Part.LineSegment(V(-47.8, 24, 0), V(-36.7, 24, 0)),
    Part.ArcOfCircle(Part.Circle(V(-35.6, 24, 0), V(0, 0, 1), 1.1), math.radians(180), math.radians(472)),
    Part.LineSegment(V(-36, 25, 0), V(-48.4, 25, 0)),
    Part.ArcOfCircle(Part.Circle(V(-51.6, 26.5, 0), V(0, 0, 1), 3.5), math.radians(25), math.radians(335)),
    Part.LineSegment(V(2.3, 78, 0), V(15.2, 78, 0)),
    Part.ArcOfCircle(Part.Circle(V(15.2, 79, 0), V(0, 0, 1), 1), math.radians(-90), math.radians(180)),
    Part.LineSegment(V(14.2, 79, 0), V(2.9, 79, 0)),
    Part.ArcOfCircle(Part.Circle(V(-0.8, 76.5, 0), V(0, 0, 1), 4.5), math.radians(34), math.radians(326)),
    Part.LineSegment(V(2.9, 74, 0), V(14.2, 74, 0)),
    Part.ArcOfCircle(Part.Circle(V(15.2, 74, 0), V(0, 0, 1), 1), math.radians(180), math.radians(450)),
    Part.LineSegment(V(15.2, 75, 0), V(2.3, 75, 0)),
    Part.ArcOfCircle(Part.Circle(V(-0.8, 76.5, 0), V(0, 0, 1), 3.5), math.radians(25), math.radians(335)),
    Part.LineSegment(V(52.9, 78, 0), V(65.8, 78, 0)),
    Part.ArcOfCircle(Part.Circle(V(65.8, 79, 0), V(0, 0, 1), 1), math.radians(-90), math.radians(180)),
    Part.LineSegment(V(64.8, 79, 0), V(53.5, 79, 0)),
    Part.ArcOfCircle(Part.Circle(V(49.8, 76.5, 0), V(0, 0, 1), 4.5), math.radians(34), math.radians(326)),
    Part.LineSegment(V(53.5, 74, 0), V(64.8, 74, 0)),
    Part.ArcOfCircle(Part.Circle(V(65.8, 74, 0), V(0, 0, 1), 1), math.radians(180), math.radians(450)),
    Part.LineSegment(V(65.8, 75, 0), V(52.9, 75, 0)),
    Part.ArcOfCircle(Part.Circle(V(49.8, 76.5, 0), V(0, 0, 1), 3.5), math.radians(25), math.radians(335)),
    Part.LineSegment(V(-67.5, 78, 0), V(-54.7, 78, 0)),
    Part.ArcOfCircle(Part.Circle(V(-51.5, 76.5, 0), V(0, 0, 1), 3.5), math.radians(-155), math.radians(155)),
    Part.LineSegment(V(-54.7, 75, 0), V(-67.5, 75, 0)),
    Part.ArcOfCircle(Part.Circle(V(-67.5, 74, 0), V(0, 0, 1), 1), math.radians(90), math.radians(360)),
    Part.LineSegment(V(-66.5, 74, 0), V(-55.3, 74, 0)),
    Part.ArcOfCircle(Part.Circle(V(-51.5, 76.5, 0), V(0, 0, 1), 4.5), math.radians(-146), math.radians(146)),
    Part.LineSegment(V(-55.3, 79, 0), V(-66.5, 79, 0)),
    Part.ArcOfCircle(Part.Circle(V(-67.5, 79, 0), V(0, 0, 1), 1), math.radians(0), math.radians(270)),
], False)
sketch20.addConstraint([
    Sketcher.Constraint("Tangent", 0, 2, 1, 1),
    Sketcher.Constraint("Coincident", 1, 2, 2, 1),
    Sketcher.Constraint("Coincident", 2, 2, 3, 1),
    Sketcher.Constraint("Coincident", 3, 2, 4, 1),
    Sketcher.Constraint("Coincident", 4, 2, 5, 1),
    Sketcher.Constraint("Tangent", 5, 2, 6, 1),
    Sketcher.Constraint("Coincident", 6, 2, 7, 2),
    Sketcher.Constraint("Coincident", 7, 1, 0, 1),
    Sketcher.Constraint("Tangent", 8, 2, 9, 1),
    Sketcher.Constraint("Coincident", 9, 2, 10, 1),
    Sketcher.Constraint("Coincident", 10, 2, 11, 1),
    Sketcher.Constraint("Coincident", 11, 2, 12, 1),
    Sketcher.Constraint("Coincident", 12, 2, 13, 1),
    Sketcher.Constraint("Tangent", 13, 2, 14, 1),
    Sketcher.Constraint("Coincident", 14, 2, 15, 2),
    Sketcher.Constraint("Coincident", 15, 1, 8, 1),
    Sketcher.Constraint("Tangent", 16, 2, 17, 1),
    Sketcher.Constraint("Coincident", 17, 2, 18, 1),
    Sketcher.Constraint("Coincident", 18, 2, 19, 1),
    Sketcher.Constraint("Coincident", 19, 2, 20, 1),
    Sketcher.Constraint("Coincident", 20, 2, 21, 1),
    Sketcher.Constraint("Coincident", 21, 2, 22, 1),
    Sketcher.Constraint("Coincident", 22, 2, 23, 2),
    Sketcher.Constraint("Coincident", 23, 1, 16, 1),
    Sketcher.Constraint("Tangent", 24, 2, 25, 1),
    Sketcher.Constraint("Coincident", 25, 2, 26, 1),
    Sketcher.Constraint("Coincident", 26, 2, 27, 1),
    Sketcher.Constraint("Coincident", 27, 2, 28, 1),
    Sketcher.Constraint("Coincident", 28, 2, 29, 1),
    Sketcher.Constraint("Tangent", 29, 2, 30, 1),
    Sketcher.Constraint("Coincident", 30, 2, 31, 2),
    Sketcher.Constraint("Coincident", 31, 1, 24, 1),
    Sketcher.Constraint("Tangent", 32, 2, 33, 1),
    Sketcher.Constraint("Coincident", 33, 2, 34, 1),
    Sketcher.Constraint("Coincident", 34, 2, 35, 1),
    Sketcher.Constraint("Coincident", 35, 2, 36, 1),
    Sketcher.Constraint("Coincident", 36, 2, 37, 1),
    Sketcher.Constraint("Tangent", 37, 2, 38, 1),
    Sketcher.Constraint("Coincident", 38, 2, 39, 2),
    Sketcher.Constraint("Coincident", 39, 1, 32, 1),
    Sketcher.Constraint("Coincident", 40, 2, 41, 2),
    Sketcher.Constraint("Coincident", 41, 1, 42, 1),
    Sketcher.Constraint("Tangent", 42, 2, 43, 1),
    Sketcher.Constraint("Coincident", 43, 2, 44, 1),
    Sketcher.Constraint("Coincident", 44, 2, 45, 1),
    Sketcher.Constraint("Coincident", 45, 2, 46, 1),
    Sketcher.Constraint("Coincident", 46, 2, 47, 1),
    Sketcher.Constraint("Tangent", 47, 2, 40, 1),
    Sketcher.Constraint("Horizontal", 0),
    Sketcher.Constraint("Horizontal", 2),
    Sketcher.Constraint("Horizontal", 4),
    Sketcher.Constraint("Horizontal", 6),
    Sketcher.Constraint("Horizontal", 8),
    Sketcher.Constraint("Horizontal", 10),
    Sketcher.Constraint("Horizontal", 12),
    Sketcher.Constraint("Horizontal", 14),
    Sketcher.Constraint("Horizontal", 16),
    Sketcher.Constraint("Horizontal", 18),
    Sketcher.Constraint("Horizontal", 20),
    Sketcher.Constraint("Horizontal", 22),
    Sketcher.Constraint("Horizontal", 24),
    Sketcher.Constraint("Horizontal", 26),
    Sketcher.Constraint("Horizontal", 28),
    Sketcher.Constraint("Horizontal", 30),
    Sketcher.Constraint("Horizontal", 32),
    Sketcher.Constraint("Horizontal", 34),
    Sketcher.Constraint("Horizontal", 36),
    Sketcher.Constraint("Horizontal", 38),
    Sketcher.Constraint("Horizontal", 40),
    Sketcher.Constraint("Horizontal", 42),
    Sketcher.Constraint("Horizontal", 44),
    Sketcher.Constraint("Horizontal", 46),
    Sketcher.Constraint("Coincident", 7, 3, 3, 3),
    Sketcher.Constraint("Coincident", 15, 3, 11, 3),
    Sketcher.Constraint("Coincident", 23, 3, 19, 3),
    Sketcher.Constraint("Coincident", 31, 3, 27, 3),
    Sketcher.Constraint("Coincident", 39, 3, 35, 3),
    Sketcher.Constraint("Coincident", 45, 3, 41, 3),
    Sketcher.Constraint("Equal", 1, 5),
    Sketcher.Constraint("Equal", 5, 9),
    Sketcher.Constraint("Equal", 3, 11),
    Sketcher.Constraint("Equal", 9, 13),
    Sketcher.Constraint("Equal", 7, 15),
    Sketcher.Constraint("Equal", 13, 17),
    Sketcher.Constraint("Equal", 11, 19),
    Sketcher.Constraint("Equal", 15, 23),
    Sketcher.Constraint("Equal", 17, 25),
    Sketcher.Constraint("Equal", 19, 27),
    Sketcher.Constraint("Equal", 25, 29),
    Sketcher.Constraint("Equal", 23, 31),
    Sketcher.Constraint("Equal", 29, 33),
    Sketcher.Constraint("Equal", 27, 35),
    Sketcher.Constraint("Equal", 33, 37),
    Sketcher.Constraint("Equal", 31, 39),
    Sketcher.Constraint("Equal", 39, 41),
    Sketcher.Constraint("Equal", 37, 43),
    Sketcher.Constraint("Equal", 35, 45),
    Sketcher.Constraint("Equal", 43, 47),
    Sketcher.Constraint("Horizontal", 1, 3, 9, 3),
    Sketcher.Constraint("Horizontal", 7, 3, 11, 3),
    Sketcher.Constraint("Horizontal", 5, 3, 13, 3),
    Sketcher.Constraint("Horizontal", 9, 3, 17, 3),
    Sketcher.Constraint("Horizontal", 15, 3, 19, 3),
    Sketcher.Constraint("Horizontal", 13, 3, 21, 3),
    Sketcher.Constraint("Horizontal", 25, 3, 33, 3),
    Sketcher.Constraint("Horizontal", 31, 3, 35, 3),
    Sketcher.Constraint("Horizontal", 29, 3, 37, 3),
    Sketcher.Constraint("Horizontal", 39, 3, 41, 3),
    Sketcher.Constraint("Horizontal", 37, 3, 43, 3),
    Sketcher.Constraint("Horizontal", 33, 3, 47, 3),
    Sketcher.Constraint("Horizontal", 17, 3, 1, 2),
    Sketcher.Constraint("Horizontal", 21, 3, 3, 2),
    Sketcher.Constraint("Horizontal", 2, 2, 9, 2),
    Sketcher.Constraint("Horizontal", 4, 2, 11, 2),
    Sketcher.Constraint("Horizontal", 10, 2, 17, 2),
    Sketcher.Constraint("Horizontal", 12, 2, 19, 2),
    Sketcher.Constraint("Horizontal", 14, 2, 21, 2),
    Sketcher.Constraint("Horizontal", 47, 3, 25, 2),
    Sketcher.Constraint("Horizontal", 43, 3, 27, 2),
    Sketcher.Constraint("Horizontal", 26, 2, 33, 2),
    Sketcher.Constraint("Horizontal", 28, 2, 35, 2),
    Sketcher.Constraint("Horizontal", 36, 2, 43, 2),
    Sketcher.Constraint("Horizontal", 34, 2, 45, 2),
    Sketcher.Constraint("Vertical", 1, 3, 5, 3),
    Sketcher.Constraint("Vertical", 9, 3, 13, 3),
    Sketcher.Constraint("Vertical", 17, 3, 21, 3),
    Sketcher.Constraint("Vertical", 25, 3, 29, 3),
    Sketcher.Constraint("Vertical", 5, 3, 33, 3),
    Sketcher.Constraint("Vertical", 7, 3, 35, 3),
    Sketcher.Constraint("Vertical", 33, 3, 37, 3),
    Sketcher.Constraint("Vertical", 43, 3, 47, 3),
    Sketcher.Constraint("Vertical", 2, 2, 3, 2),
    Sketcher.Constraint("Vertical", 26, 2, 27, 2),
    Sketcher.Constraint("Vertical", 3, 2, 34, 2),
    Sketcher.Constraint("Equal", 6, 8),
    Sketcher.Constraint("Equal", 14, 16),
    Sketcher.Constraint("Equal", 16, 24),
    Sketcher.Constraint("Equal", 38, 40),
    Sketcher.Constraint("Radius", 1, 1.0),
    Sketcher.Constraint("Radius", 3, 4.5),
    Sketcher.Constraint("Radius", 7, 3.5),
    Sketcher.Constraint("Radius", 21, 1.080449),
    Sketcher.Constraint("DistanceX", -1, 1, 6, 2, 52.929301),
    Sketcher.Constraint("DistanceX", -1, 1, 14, 2, 2.259301),
    Sketcher.Constraint("DistanceX", 22, 2, -1, 1, 48.410699),
    Sketcher.Constraint("DistanceX", -1, 1, 30, 2, 2.329301),
    Sketcher.Constraint("DistanceX", 0, 1, 0, 2, 12.837722),
    Sketcher.Constraint("DistanceX", 2, 2, 2, 1, 11.258343),
    Sketcher.Constraint("DistanceY", -1, 1, 1, 3, 29.019611),
    Sketcher.Constraint("DistanceY", -1, 1, 25, 3, 78.979611),
    Sketcher.Constraint("DistanceX", 41, 3, -1, 1, 51.532977),
])
pocket18 = doc.addObject("PartDesign::Pocket", "Pocket017")
body.addObject(pocket18)
pocket18.Profile = sketch20
pocket18.Length = 10
doc.recompute()

fillet = doc.addObject("PartDesign::Fillet", "Fillet")
body.addObject(fillet)
fillet.Base = (pocket18, edges_at(pocket18, [
    (53.509, 29.02, 1),
    (-47.831, 24.02, 1),
    (-47.831, 29.02, 1),
    (-55.275, 78.98, 1),
    (-55.275, 73.98, 1),
    (2.909, 73.98, 1),
    (2.909, 78.98, 1),
    (53.509, 73.98, 1),
    (53.509, 78.98, 1),
    (2.839, 24.02, 1),
    (2.839, 29.02, 1),
]))
fillet.Radius = 2

doc.recompute()
